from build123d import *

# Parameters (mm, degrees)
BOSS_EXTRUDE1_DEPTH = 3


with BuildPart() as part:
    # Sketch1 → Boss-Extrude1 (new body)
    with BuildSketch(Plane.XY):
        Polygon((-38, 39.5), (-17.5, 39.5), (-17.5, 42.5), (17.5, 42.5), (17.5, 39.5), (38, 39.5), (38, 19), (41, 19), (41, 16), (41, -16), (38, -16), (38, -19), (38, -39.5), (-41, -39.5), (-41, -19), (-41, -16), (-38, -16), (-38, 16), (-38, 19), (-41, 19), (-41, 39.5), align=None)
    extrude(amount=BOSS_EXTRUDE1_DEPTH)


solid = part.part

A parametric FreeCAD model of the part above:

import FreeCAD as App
import Part
import Sketcher
Q = App.Units.Quantity

doc = App.newDocument("Part")
params = doc.addObject("Spreadsheet::Sheet", "Params")
for row, (alias, value) in enumerate([
    ("sketch1_width", "3 mm"),
    ("sketch1_width2", "79 mm"),
    ("sketch1_width3", "35 mm"),
    ("pad1_length", "3 mm"),
], start=1):
    params.set(f"A{row}", alias)
    params.set(f"B{row}", "=" + value)
    params.setAlias(f"B{row}", alias)

body = doc.addObject("PartDesign::Body", "Body")

sketch1 = body.newObject("Sketcher::SketchObject", "Sketch")
sketch1.AttachmentSupport = (doc.getObject("XY_Plane"), [""])
sketch1.MapMode = "FlatFace"
sketch1.addGeometry(Part.LineSegment(App.Vector(-17.5, 39.5, 0), App.Vector(-41, 39.5, 0)), False)
sketch1.addGeometry(Part.LineSegment(App.Vector(-41, 39.5, 0), App.Vector(-41, 19, 0)), False)
sketch1.addGeometry(Part.LineSegment(App.Vector(-41, 19, 0), App.Vector(-38, 19, 0)), False)
sketch1.addGeometry(Part.LineSegment(App.Vector(-38, 19, 0), App.Vector(-38, -16, 0)), False)
sketch1.addGeometry(Part.LineSegment(App.Vector(-38, -16, 0), App.Vector(-41, -16, 0)), False)
sketch1.addGeometry(Part.LineSegment(App.Vector(-41, -16, 0), App.Vector(-41, -39.5, 0)), False)
sketch1.addGeometry(Part.LineSegment(App.Vector(-41, -39.5, 0), App.Vector(38, -39.5, 0)), False)
sketch1.addGeometry(Part.LineSegment(App.Vector(38, -39.5, 0), App.Vector(38, -16, 0)), False)
sketch1.addGeometry(Part.LineSegment(App.Vector(38, -16, 0), App.Vector(41, -16, 0)), False)
sketch1.addGeometry(Part.LineSegment(App.Vector(41, -16, 0), App.Vector(41, 19, 0)), False)
sketch1.addGeometry(Part.LineSegment(App.Vector(41, 19, 0), App.Vector(38, 19, 0)), False)
sketch1.addGeometry(Part.LineSegment(App.Vector(38, 19, 0), App.Vector(38, 39.5, 0)), False)
sketch1.addGeometry(Part.LineSegment(App.Vector(38, 39.5, 0), App.Vector(17.5, 39.5, 0)), False)
sketch1.addGeometry(Part.LineSegment(App.Vector(17.5, 39.5, 0), App.Vector(17.5, 42.5, 0)), False)
sketch1.addGeometry(Part.LineSegment(App.Vector(17.5, 42.5, 0), App.Vector(-17.5, 42.5, 0)), False)
sketch1.addGeometry(Part.LineSegment(App.Vector(-17.5, 42.5, 0), App.Vector(-17.5, 39.5, 0)), False)
sketch1.addConstraint(Sketcher.Constraint("Coincident", 0, 2, 1, 1))
sketch1.addConstraint(Sketcher.Constraint("Coincident", 1, 2, 2, 1))
sketch1.addConstraint(Sketcher.Constraint("Coincident", 2, 2, 3, 1))
sketch1.addConstraint(Sketcher.Constraint("Coincident", 3, 2, 4, 1))
sketch1.addConstraint(Sketcher.Constraint("Coincident", 4, 2, 5, 1))
sketch1.addConstraint(Sketcher.Constraint("Coincident", 5, 2, 6, 1))
sketch1.addConstraint(Sketcher.Constraint("Coincident", 6, 2, 7, 1))
sketch1.addConstraint(Sketcher.Constraint("Coincident", 7, 2, 8, 1))
sketch1.addConstraint(Sketcher.Constraint("Coincident", 8, 2, 9, 1))
sketch1.addConstraint(Sketcher.Constraint("Coincident", 9, 2, 10, 1))
sketch1.addConstraint(Sketcher.Constraint("Coincident", 10, 2, 11, 1))
sketch1.addConstraint(Sketcher.Constraint("Coincident", 11, 2, 12, 1))
sketch1.addConstraint(Sketcher.Constraint("Coincident", 12, 2, 13, 1))
sketch1.addConstraint(Sketcher.Constraint("Coincident", 13, 2, 14, 1))
sketch1.addConstraint(Sketcher.Constraint("Coincident", 14, 2, 15, 1))
sketch1.addConstraint(Sketcher.Constraint("Coincident", 15, 2, 0, 1))
sketch1.addConstraint(Sketcher.Constraint("Horizontal", 0))
sketch1.addConstraint(Sketcher.Constraint("Vertical", 1))
sketch1.addConstraint(Sketcher.Constraint("Horizontal", 2))
sketch1.addConstraint(Sketcher.Constraint("Vertical", 3))
sketch1.addConstraint(Sketcher.Constraint("Horizontal", 4))
sketch1.addConstraint(Sketcher.Constraint("Vertical", 5))
sketch1.addConstraint(Sketcher.Constraint("Horizontal", 6))
sketch1.addConstraint(Sketcher.Constraint("Vertical", 7))
sketch1.addConstraint(Sketcher.Constraint("Horizontal", 8))
sketch1.addConstraint(Sketcher.Constraint("Vertical", 9))
sketch1.addConstraint(Sketcher.Constraint("Horizontal", 10))
sketch1.addConstraint(Sketcher.Constraint("Vertical", 11))
sketch1.addConstraint(Sketcher.Constraint("Horizontal", 12))
sketch1.addConstraint(Sketcher.Constraint("Vertical", 13))
sketch1.addConstraint(Sketcher.Constraint("Horizontal", 14))
sketch1.addConstraint(Sketcher.Constraint("Vertical", 15))
sketch1.addConstraint(Sketcher.Constraint("Symmetric", 3, 2, 7, 2, -2))
sketch1.addConstraint(Sketcher.Constraint("Symmetric", 1, 2, 9, 2, -2))
sketch1.addConstraint(Sketcher.Constraint("Symmetric", 12, 2, 15, 2, -2))
sketch1.addConstraint(Sketcher.Constraint("Symmetric", 0, 2, 5, 2, -1))
sketch1.addConstraint(Sketcher.Constraint("Vertical", 7, 2, 10, 2))
sketch1.addConstraint(Sketcher.Constraint("Equal", 12, 1))
sketch1.addConstraint(Sketcher.Constraint("Equal", 14, 3))
sketch1.addConstraint(Sketcher.Constraint("Equal", 0, 5))
sketch1.addConstraint(Sketcher.Constraint("Equal", 10, 13))
sketch1.addConstraint(Sketcher.Constraint("DistanceX", 2, 1, 2, 2, Q("3 mm")))
sketch1.addConstraint(Sketcher.Constraint("DistanceX", 6, 1, 6, 2, Q("79 mm")))
sketch1.addConstraint(Sketcher.Constraint("DistanceX", 14, 2, 14, 1, Q("35 mm")))
sketch1.setExpression("Constraints[41]", "Params.sketch1_width")
sketch1.setExpression("Constraints[42]", "Params.sketch1_width2")
sketch1.setExpression("Constraints[43]", "Params.sketch1_width3")
pad1 = body.newObject("PartDesign::Pad", "Pad")
pad1.Profile = sketch1
pad1.setExpression("Length", "Params.pad1_length")

doc.recompute()
